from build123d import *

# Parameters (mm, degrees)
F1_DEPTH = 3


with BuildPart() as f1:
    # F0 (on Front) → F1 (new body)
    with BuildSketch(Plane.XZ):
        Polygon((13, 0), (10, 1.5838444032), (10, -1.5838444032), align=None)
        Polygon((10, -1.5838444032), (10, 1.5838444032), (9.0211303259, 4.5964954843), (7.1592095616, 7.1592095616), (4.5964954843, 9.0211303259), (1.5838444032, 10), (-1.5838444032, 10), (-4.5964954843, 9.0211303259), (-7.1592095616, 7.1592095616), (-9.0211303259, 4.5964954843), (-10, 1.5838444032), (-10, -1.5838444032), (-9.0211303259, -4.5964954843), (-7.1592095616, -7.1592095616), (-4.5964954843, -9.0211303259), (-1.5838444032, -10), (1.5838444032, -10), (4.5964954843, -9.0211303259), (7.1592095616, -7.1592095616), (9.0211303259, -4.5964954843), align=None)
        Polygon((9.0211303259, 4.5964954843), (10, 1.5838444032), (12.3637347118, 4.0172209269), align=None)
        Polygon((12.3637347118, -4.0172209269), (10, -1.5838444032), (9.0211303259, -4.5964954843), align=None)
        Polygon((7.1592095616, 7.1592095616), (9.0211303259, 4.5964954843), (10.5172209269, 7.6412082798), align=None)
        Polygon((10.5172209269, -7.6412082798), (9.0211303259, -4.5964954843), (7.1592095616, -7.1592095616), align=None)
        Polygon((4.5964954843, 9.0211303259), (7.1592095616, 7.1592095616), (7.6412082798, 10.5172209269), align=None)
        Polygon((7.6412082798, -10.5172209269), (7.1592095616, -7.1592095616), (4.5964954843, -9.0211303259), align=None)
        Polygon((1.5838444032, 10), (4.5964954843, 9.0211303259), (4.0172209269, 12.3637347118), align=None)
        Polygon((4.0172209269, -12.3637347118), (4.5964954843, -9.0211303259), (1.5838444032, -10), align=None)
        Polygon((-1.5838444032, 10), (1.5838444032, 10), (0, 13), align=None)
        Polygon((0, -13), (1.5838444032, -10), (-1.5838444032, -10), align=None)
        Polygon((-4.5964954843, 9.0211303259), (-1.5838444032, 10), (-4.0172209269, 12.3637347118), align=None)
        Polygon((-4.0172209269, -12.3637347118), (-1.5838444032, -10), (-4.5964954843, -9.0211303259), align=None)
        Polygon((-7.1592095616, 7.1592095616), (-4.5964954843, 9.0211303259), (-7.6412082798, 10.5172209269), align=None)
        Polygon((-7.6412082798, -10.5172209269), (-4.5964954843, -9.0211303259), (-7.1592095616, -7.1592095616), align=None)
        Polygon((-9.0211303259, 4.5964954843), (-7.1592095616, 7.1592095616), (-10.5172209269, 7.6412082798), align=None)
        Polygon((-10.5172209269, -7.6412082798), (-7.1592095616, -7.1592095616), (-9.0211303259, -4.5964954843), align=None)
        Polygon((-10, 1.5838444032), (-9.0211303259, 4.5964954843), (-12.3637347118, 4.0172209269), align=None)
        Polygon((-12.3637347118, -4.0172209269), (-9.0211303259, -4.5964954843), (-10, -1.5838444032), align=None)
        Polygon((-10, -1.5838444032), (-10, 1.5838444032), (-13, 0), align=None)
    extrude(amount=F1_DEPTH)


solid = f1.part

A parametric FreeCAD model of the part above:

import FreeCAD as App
import Part
import Sketcher

V = App.Vector


def add_polygon(sketch, points):
    """Adds a closed chain of lines whose ends are joined by coincident constraints."""
    first, n = sketch.GeometryCount, len(points)
    for a, b in zip(points, points[1:] + points[:1]):
        sketch.addGeometry(Part.LineSegment(App.Vector(*a, 0), App.Vector(*b, 0)), False)
    for i in range(n):
        sketch.addConstraint(Sketcher.Constraint("Coincident", first + i, 2, first + (i + 1) % n, 1))

doc = App.newDocument("Part")
body = doc.addObject("PartDesign::Body", "Body")

# Sketch on XZ plane
sketch1 = doc.addObject("Sketcher::SketchObject", "Sketch")
body.addObject(sketch1)
sketch1.AttachmentSupport = (doc.XZ_Plane, [""])
sketch1.MapMode = "FlatFace"
add_polygon(sketch1, [(13, 0), (10, 1.583844), (12.363735, 4.017221), (9.02113, 4.596495), (10.517221, 7.641208), (7.15921, 7.15921), (7.641208, 10.517221), (4.596495, 9.02113), (4.017221, 12.363735), (1.583844, 10), (0, 13), (-1.583844, 10), (-4.017221, 12.363735), (-4.596495, 9.02113), (-7.641208, 10.517221), (-7.15921, 7.15921), (-10.517221, 7.641208), (-9.02113, 4.596495), (-12.363735, 4.017221), (-10, 1.583844), (-13, 0), (-10, -1.583844), (-12.363735, -4.017221), (-9.02113, -4.596495), (-10.517221, -7.641208), (-7.15921, -7.15921), (-7.641208, -10.517221), (-4.596495, -9.02113), (-4.017221, -12.363735), (-1.583844, -10), (0, -13), (1.583844, -10), (4.017221, -12.363735), (4.596495, -9.02113), (7.641208, -10.517221), (7.15921, -7.15921), (10.517221, -7.641208), (9.02113, -4.596495), (12.363735, -4.017221), (10, -1.583844)])  # lines 0-39
sketch1.addConstraint(Sketcher.Constraint("Symmetric", 0, 2, 20, 2, -1, 1))
sketch1.addConstraint(Sketcher.Constraint("Symmetric", 1, 2, 21, 2, -1, 1))
sketch1.addConstraint(Sketcher.Constraint("Symmetric", 2, 2, 22, 2, -1, 1))
sketch1.addConstraint(Sketcher.Constraint("Symmetric", 3, 2, 23, 2, -1, 1))
sketch1.addConstraint(Sketcher.Constraint("Symmetric", 4, 2, 24, 2, -1, 1))
sketch1.addConstraint(Sketcher.Constraint("Symmetric", 5, 2, 25, 2, -1, 1))
sketch1.addConstraint(Sketcher.Constraint("Symmetric", 6, 2, 26, 2, -1, 1))
sketch1.addConstraint(Sketcher.Constraint("Symmetric", 7, 2, 27, 2, -1, 1))
sketch1.addConstraint(Sketcher.Constraint("Symmetric", 8, 2, 28, 2, -1, 1))
sketch1.addConstraint(Sketcher.Constraint("Symmetric", 9, 2, 29, 2, -1, 1))
sketch1.addConstraint(Sketcher.Constraint("Symmetric", 10, 2, 30, 2, -1, 1))
sketch1.addConstraint(Sketcher.Constraint("Symmetric", 11, 2, 31, 2, -1, 1))
sketch1.addConstraint(Sketcher.Constraint("Symmetric", 12, 2, 32, 2, -1, 1))
sketch1.addConstraint(Sketcher.Constraint("Symmetric", 13, 2, 33, 2, -1, 1))
sketch1.addConstraint(Sketcher.Constraint("Symmetric", 14, 2, 34, 2, -1, 1))
sketch1.addConstraint(Sketcher.Constraint("Symmetric", 15, 2, 35, 2, -1, 1))
sketch1.addConstraint(Sketcher.Constraint("Symmetric", 16, 2, 36, 2, -1, 1))
sketch1.addConstraint(Sketcher.Constraint("Symmetric", 17, 2, 37, 2, -1, 1))
sketch1.addConstraint(Sketcher.Constraint("Symmetric", 18, 2, 38, 2, -1, 1))
sketch1.addConstraint(Sketcher.Constraint("Symmetric", 19, 2, 39, 2, -1, 1))
sketch1.addConstraint(Sketcher.Constraint("Symmetric", 8, 2, 10, 2, -2))
sketch1.addConstraint(Sketcher.Constraint("Symmetric", 7, 2, 11, 2, -2))
sketch1.addConstraint(Sketcher.Constraint("Symmetric", 6, 2, 12, 2, -2))
sketch1.addConstraint(Sketcher.Constraint("Symmetric", 5, 2, 13, 2, -2))
sketch1.addConstraint(Sketcher.Constraint("Symmetric", 4, 2, 14, 2, -2))
sketch1.addConstraint(Sketcher.Constraint("Symmetric", 3, 2, 15, 2, -2))
sketch1.addConstraint(Sketcher.Constraint("Symmetric", 2, 2, 16, 2, -2))
sketch1.addConstraint(Sketcher.Constraint("Symmetric", 1, 2, 17, 2, -2))
sketch1.addConstraint(Sketcher.Constraint("Symmetric", 0, 2, 18, 2, -2))
sketch1.addConstraint(Sketcher.Constraint("PointOnObject", 9, 2, -2))
sketch1.addConstraint(Sketcher.Constraint("PointOnObject", 19, 2, -1))
sketch1.addConstraint(Sketcher.Constraint("Perpendicular", 0, 10))
sketch1.addConstraint(Sketcher.Constraint("Perpendicular", 1, 11))
sketch1.addConstraint(Sketcher.Constraint("Perpendicular", 2, 12))
sketch1.addConstraint(Sketcher.Constraint("Perpendicular", 3, 13))
sketch1.addConstraint(Sketcher.Constraint("Perpendicular", 4, 14))
sketch1.addConstraint(Sketcher.Constraint("Equal", 0, 1))
sketch1.addConstraint(Sketcher.Constraint("Equal", 1, 2))
sketch1.addConstraint(Sketcher.Constraint("Equal", 2, 3))
sketch1.addConstraint(Sketcher.Constraint("Equal", 3, 4))
sketch1.addConstraint(Sketcher.Constraint("Equal", 4, 5))
sketch1.addConstraint(Sketcher.Constraint("Equal", 5, 6))
sketch1.addConstraint(Sketcher.Constraint("Equal", 6, 7))
sketch1.addConstraint(Sketcher.Constraint("Equal", 7, 8))
sketch1.addConstraint(Sketcher.Constraint("Equal", 8, 9))
sketch1.addConstraint(Sketcher.Constraint("DistanceX", -1, 1, 0, 2, 10.0))
sketch1.addConstraint(Sketcher.Constraint("DistanceY", -1, 1, 9, 2, 13.0))
sketch1.addConstraint(Sketcher.Constraint("DistanceY", 1, 2, 5, 2, 6.5))
sketch1.addConstraint(Sketcher.Constraint("DistanceY", 4, 2, 3, 2, 0.481999))
sketch1.addConstraint(Sketcher.Constraint("DistanceY", -1, 1, 1, 2, 4.017221))
sketch1.addConstraint(Sketcher.Constraint("DistanceX", -1, 1, 2, 2, 9.02113))
pad1 = doc.addObject("PartDesign::Pad", "Pad")
body.addObject(pad1)
pad1.Profile = sketch1
pad1.Length = 3

doc.recompute()
